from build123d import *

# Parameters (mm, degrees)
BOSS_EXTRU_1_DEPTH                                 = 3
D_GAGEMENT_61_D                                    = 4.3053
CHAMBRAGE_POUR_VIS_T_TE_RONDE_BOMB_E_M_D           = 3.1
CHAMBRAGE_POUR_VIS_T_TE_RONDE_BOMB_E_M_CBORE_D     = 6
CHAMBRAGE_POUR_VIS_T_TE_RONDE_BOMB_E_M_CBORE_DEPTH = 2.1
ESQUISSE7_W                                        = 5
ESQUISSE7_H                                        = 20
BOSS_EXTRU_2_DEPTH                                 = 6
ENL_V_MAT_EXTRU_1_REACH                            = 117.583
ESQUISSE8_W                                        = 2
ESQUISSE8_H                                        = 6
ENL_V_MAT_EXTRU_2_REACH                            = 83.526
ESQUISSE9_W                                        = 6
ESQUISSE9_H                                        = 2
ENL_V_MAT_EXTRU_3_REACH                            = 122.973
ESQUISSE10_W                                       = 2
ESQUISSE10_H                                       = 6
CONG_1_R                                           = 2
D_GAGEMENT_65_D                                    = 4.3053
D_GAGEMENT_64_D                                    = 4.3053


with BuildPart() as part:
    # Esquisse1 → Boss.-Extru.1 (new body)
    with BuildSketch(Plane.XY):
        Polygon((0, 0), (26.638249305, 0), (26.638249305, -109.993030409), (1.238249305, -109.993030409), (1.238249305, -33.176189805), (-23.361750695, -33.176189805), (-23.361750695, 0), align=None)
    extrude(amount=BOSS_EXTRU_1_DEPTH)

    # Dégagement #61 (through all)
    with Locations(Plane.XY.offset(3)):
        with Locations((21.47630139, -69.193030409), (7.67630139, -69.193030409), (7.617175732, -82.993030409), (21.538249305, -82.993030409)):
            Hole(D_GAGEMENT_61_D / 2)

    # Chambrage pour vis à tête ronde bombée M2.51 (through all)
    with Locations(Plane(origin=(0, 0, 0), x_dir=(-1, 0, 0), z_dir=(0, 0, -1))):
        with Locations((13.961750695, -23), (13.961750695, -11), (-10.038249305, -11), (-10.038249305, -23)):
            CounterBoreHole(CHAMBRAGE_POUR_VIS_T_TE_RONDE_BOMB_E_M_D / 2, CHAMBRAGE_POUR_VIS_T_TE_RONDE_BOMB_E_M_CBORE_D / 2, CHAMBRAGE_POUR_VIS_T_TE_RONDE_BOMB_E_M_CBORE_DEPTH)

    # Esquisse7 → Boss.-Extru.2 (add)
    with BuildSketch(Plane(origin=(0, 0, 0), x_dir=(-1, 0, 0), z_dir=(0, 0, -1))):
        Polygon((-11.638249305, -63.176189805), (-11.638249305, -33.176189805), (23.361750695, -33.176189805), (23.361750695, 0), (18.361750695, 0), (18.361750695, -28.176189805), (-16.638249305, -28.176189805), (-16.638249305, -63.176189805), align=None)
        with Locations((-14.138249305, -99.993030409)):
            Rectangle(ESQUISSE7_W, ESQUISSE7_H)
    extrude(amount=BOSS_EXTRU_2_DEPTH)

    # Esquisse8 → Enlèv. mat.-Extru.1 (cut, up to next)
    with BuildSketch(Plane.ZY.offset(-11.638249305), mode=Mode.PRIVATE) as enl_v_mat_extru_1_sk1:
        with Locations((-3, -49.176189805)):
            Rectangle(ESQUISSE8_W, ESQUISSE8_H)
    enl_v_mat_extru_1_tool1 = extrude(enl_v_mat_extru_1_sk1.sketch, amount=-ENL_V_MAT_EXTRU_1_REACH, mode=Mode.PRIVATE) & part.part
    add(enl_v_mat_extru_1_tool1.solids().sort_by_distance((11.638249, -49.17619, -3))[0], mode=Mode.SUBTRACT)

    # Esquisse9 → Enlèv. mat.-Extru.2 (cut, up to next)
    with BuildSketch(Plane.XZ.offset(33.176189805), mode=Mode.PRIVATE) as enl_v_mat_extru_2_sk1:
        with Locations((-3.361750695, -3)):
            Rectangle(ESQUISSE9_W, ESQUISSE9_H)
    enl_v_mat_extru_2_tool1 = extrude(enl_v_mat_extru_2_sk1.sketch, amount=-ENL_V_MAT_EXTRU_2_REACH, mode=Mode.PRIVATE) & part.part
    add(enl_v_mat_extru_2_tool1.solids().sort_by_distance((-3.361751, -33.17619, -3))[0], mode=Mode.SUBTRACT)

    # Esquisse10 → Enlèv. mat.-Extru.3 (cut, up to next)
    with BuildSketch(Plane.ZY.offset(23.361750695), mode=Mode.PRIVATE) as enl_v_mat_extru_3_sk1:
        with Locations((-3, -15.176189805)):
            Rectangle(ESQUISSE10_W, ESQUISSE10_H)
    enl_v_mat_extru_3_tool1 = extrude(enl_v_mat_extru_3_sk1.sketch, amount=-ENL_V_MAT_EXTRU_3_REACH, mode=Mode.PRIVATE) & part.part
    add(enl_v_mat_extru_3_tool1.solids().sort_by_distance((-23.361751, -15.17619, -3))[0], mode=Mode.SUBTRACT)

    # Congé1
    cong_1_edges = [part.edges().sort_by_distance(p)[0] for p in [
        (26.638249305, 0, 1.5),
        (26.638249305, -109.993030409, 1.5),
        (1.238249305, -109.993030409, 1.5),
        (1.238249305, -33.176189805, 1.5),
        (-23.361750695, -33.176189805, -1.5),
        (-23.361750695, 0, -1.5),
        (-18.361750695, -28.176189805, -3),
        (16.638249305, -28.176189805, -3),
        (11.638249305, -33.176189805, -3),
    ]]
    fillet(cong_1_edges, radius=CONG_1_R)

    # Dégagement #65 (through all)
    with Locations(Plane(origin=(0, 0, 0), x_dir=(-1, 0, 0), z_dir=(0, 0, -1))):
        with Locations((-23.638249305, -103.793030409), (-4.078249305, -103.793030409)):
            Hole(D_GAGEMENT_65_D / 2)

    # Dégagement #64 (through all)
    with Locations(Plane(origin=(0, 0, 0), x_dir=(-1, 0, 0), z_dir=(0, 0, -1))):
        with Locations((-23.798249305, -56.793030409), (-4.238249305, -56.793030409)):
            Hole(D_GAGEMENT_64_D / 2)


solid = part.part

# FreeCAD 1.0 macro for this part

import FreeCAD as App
import Part
import Sketcher

V = App.Vector
Q = App.Units.Quantity


def edges_at(feature, points):
    """Names of the edges that pass closest to the given points."""
    edges = feature.Shape.Edges
    near = lambda p: min(range(len(edges)), key=lambda i: edges[i].distToShape(Part.Vertex(*p))[0])
    return sorted({f"Edge{near(p) + 1}" for p in points})

doc = App.newDocument("Part")
body = doc.addObject("PartDesign::Body", "Body")

sketch1 = body.newObject("Sketcher::SketchObject", "Sketch")
sketch1.AttachmentSupport = (doc.getObject("XY_Plane"), [""])
sketch1.MapMode = "FlatFace"
sketch1.addGeometry([
    Part.LineSegment(V(26.638249, 0, 0), V(-23.361751, 0, 0)),
    Part.LineSegment(V(-23.361751, 0, 0), V(-23.361751, -33.17619, 0)),
    Part.LineSegment(V(-23.361751, -33.17619, 0), V(1.238249, -33.17619, 0)),
    Part.LineSegment(V(1.238249, -33.17619, 0), V(1.238249, -109.99303, 0)),
    Part.LineSegment(V(1.238249, -109.99303, 0), V(26.638249, -109.99303, 0)),
    Part.LineSegment(V(26.638249, -109.99303, 0), V(26.638249, 0, 0)),
], False)
sketch1.addConstraint([
    Sketcher.Constraint("Coincident", 0, 2, 1, 1),
    Sketcher.Constraint("Coincident", 1, 2, 2, 1),
    Sketcher.Constraint("Coincident", 2, 2, 3, 1),
    Sketcher.Constraint("Coincident", 3, 2, 4, 1),
    Sketcher.Constraint("Coincident", 4, 2, 5, 1),
    Sketcher.Constraint("Coincident", 5, 2, 0, 1),
    Sketcher.Constraint("Horizontal", 0),
    Sketcher.Constraint("Vertical", 1),
    Sketcher.Constraint("Horizontal", 2),
    Sketcher.Constraint("Vertical", 3),
    Sketcher.Constraint("Horizontal", 4),
    Sketcher.Constraint("Vertical", 5),
    Sketcher.Constraint("PointOnObject", 0, 2, -1),
    Sketcher.Constraint("DistanceX", 0, 2, 0, 1, Q("50 mm")),
    Sketcher.Constraint("DistanceX", 2, 1, 2, 2, Q("24.6 mm")),
    Sketcher.Constraint("DistanceY", 1, 2, 1, 1, Q("33.17619 mm")),
    Sketcher.Constraint("DistanceY", 3, 2, 3, 1, Q("76.816841 mm")),
    Sketcher.Constraint("DistanceX", 0, 2, -1, 1, Q("23.361751 mm")),
])
pad1 = body.newObject("PartDesign::Pad", "Pad")
pad1.Profile = sketch1
pad1.Length = 3

sketch2 = body.newObject("Sketcher::SketchObject", "Sketch001")
sketch2.AttachmentSupport = (doc.getObject("XY_Plane"), [""])
sketch2.MapMode = "FlatFace"
sketch2.AttachmentOffset = App.Placement(V(0, 0, 3), App.Rotation())
sketch2.addGeometry([
    Part.Circle(V(21.476301, -69.19303, 0), V(0, 0, 1), 2.15265),
    Part.Circle(V(7.676301, -69.19303, 0), V(0, 0, 1), 2.15265),
    Part.Circle(V(7.617176, -82.99303, 0), V(0, 0, 1), 2.15265),
    Part.Circle(V(21.538249, -82.99303, 0), V(0, 0, 1), 2.15265),
], False)
sketch2.addConstraint([
    Sketcher.Constraint("Equal", 0, 1),
    Sketcher.Constraint("Equal", 1, 2),
    Sketcher.Constraint("Equal", 2, 3),
    Sketcher.Constraint("Horizontal", 0, 3, 1, 3),
    Sketcher.Constraint("Horizontal", 2, 3, 3, 3),
    Sketcher.Constraint("Diameter", 0, Q("4.3053 mm")),
    Sketcher.Constraint("DistanceX", 1, 3, 0, 3, Q("13.8 mm")),
    Sketcher.Constraint("DistanceY", 2, 3, 1, 3, Q("13.8 mm")),
    Sketcher.Constraint("DistanceX", -1, 1, 0, 3, Q("21.476301 mm")),
    Sketcher.Constraint("DistanceY", 0, 3, -1, 1, Q("69.19303 mm")),
    Sketcher.Constraint("DistanceX", -1, 1, 3, 3, Q("21.538249 mm")),
    Sketcher.Constraint("DistanceX", -1, 1, 2, 3, Q("7.617176 mm")),
])
doc.recompute()
hole = body.newObject("PartDesign::Hole", "Hole")
hole.Profile = sketch2
hole.ThreadType = "None"
hole.Diameter = 4.3053
hole.DepthType = "ThroughAll"

sketch3 = body.newObject("Sketcher::SketchObject", "Sketch002")
sketch3.AttachmentSupport = (doc.getObject("XY_Plane"), [""])
sketch3.MapMode = "FlatFace"
sketch3.addGeometry([
    Part.Circle(V(-13.961751, -23, 0), V(0, 0, 1), 1.55),
    Part.Circle(V(-13.961751, -11, 0), V(0, 0, 1), 1.55),
    Part.Circle(V(10.038249, -11, 0), V(0, 0, 1), 1.55),
    Part.Circle(V(10.038249, -23, 0), V(0, 0, 1), 1.55),
], False)
sketch3.addConstraint([
    Sketcher.Constraint("Equal", 0, 1),
    Sketcher.Constraint("Equal", 1, 2),
    Sketcher.Constraint("Equal", 2, 3),
    Sketcher.Constraint("Horizontal", 1, 3, 2, 3),
    Sketcher.Constraint("Horizontal", 0, 3, 3, 3),
    Sketcher.Constraint("Vertical", 0, 3, 1, 3),
    Sketcher.Constraint("Vertical", 2, 3, 3, 3),
    Sketcher.Constraint("Diameter", 0, Q("3.1 mm")),
    Sketcher.Constraint("DistanceY", 0, 3, -1, 1, Q("23 mm")),
    Sketcher.Constraint("DistanceY", 1, 3, -1, 1, Q("11 mm")),
    Sketcher.Constraint("DistanceX", 1, 3, 2, 3, Q("24 mm")),
    Sketcher.Constraint("DistanceX", 0, 3, -1, 1, Q("13.961751 mm")),
])
doc.recompute()
hole2 = body.newObject("PartDesign::Hole", "Hole001")
hole2.Profile = sketch3
hole2.ThreadType = "None"
hole2.Diameter = 3.1
hole2.DepthType = "ThroughAll"
hole2.HoleCutType = "Counterbore"
hole2.HoleCutDiameter = 6
hole2.HoleCutDepth = 2.1
hole2.Reversed = True

sketch4 = body.newObject("Sketcher::SketchObject", "Sketch003")
sketch4.AttachmentSupport = (doc.getObject("XY_Plane"), [""])
sketch4.MapMode = "FlatFace"
sketch4.addGeometry([
    Part.LineSegment(V(11.638249, -63.17619, 0), V(11.638249, -33.17619, 0)),
    Part.LineSegment(V(11.638249, -33.17619, 0), V(-23.361751, -33.17619, 0)),
    Part.LineSegment(V(-23.361751, -33.17619, 0), V(-23.361751, 0, 0)),
    Part.LineSegment(V(-23.361751, 0, 0), V(-18.361751, 0, 0)),
    Part.LineSegment(V(-18.361751, 0, 0), V(-18.361751, -28.17619, 0)),
    Part.LineSegment(V(-18.361751, -28.17619, 0), V(16.638249, -28.17619, 0)),
    Part.LineSegment(V(16.638249, -28.17619, 0), V(16.638249, -63.17619, 0)),
    Part.LineSegment(V(16.638249, -63.17619, 0), V(11.638249, -63.17619, 0)),
    Part.LineSegment(V(16.638249, -89.99303, 0), V(16.638249, -109.99303, 0)),
    Part.LineSegment(V(16.638249, -109.99303, 0), V(11.638249, -109.99303, 0)),
    Part.LineSegment(V(11.638249, -109.99303, 0), V(11.638249, -89.99303, 0)),
    Part.LineSegment(V(11.638249, -89.99303, 0), V(16.638249, -89.99303, 0)),
], False)
sketch4.addConstraint([
    Sketcher.Constraint("Coincident", 0, 2, 1, 1),
    Sketcher.Constraint("Coincident", 1, 2, 2, 1),
    Sketcher.Constraint("Coincident", 2, 2, 3, 1),
    Sketcher.Constraint("Coincident", 3, 2, 4, 1),
    Sketcher.Constraint("Coincident", 4, 2, 5, 1),
    Sketcher.Constraint("Coincident", 5, 2, 6, 1),
    Sketcher.Constraint("Coincident", 6, 2, 7, 1),
    Sketcher.Constraint("Coincident", 7, 2, 0, 1),
    Sketcher.Constraint("Coincident", 8, 2, 9, 1),
    Sketcher.Constraint("Coincident", 9, 2, 10, 1),
    Sketcher.Constraint("Coincident", 10, 2, 11, 1),
    Sketcher.Constraint("Coincident", 11, 2, 8, 1),
    Sketcher.Constraint("Vertical", 0),
    Sketcher.Constraint("Horizontal", 1),
    Sketcher.Constraint("Vertical", 2),
    Sketcher.Constraint("Horizontal", 3),
    Sketcher.Constraint("Vertical", 4),
    Sketcher.Constraint("Horizontal", 5),
    Sketcher.Constraint("Vertical", 6),
    Sketcher.Constraint("Horizontal", 7),
    Sketcher.Constraint("Vertical", 8),
    Sketcher.Constraint("Horizontal", 9),
    Sketcher.Constraint("Vertical", 10),
    Sketcher.Constraint("Horizontal", 11),
    Sketcher.Constraint("PointOnObject", 2, 2, -1),
    Sketcher.Constraint("Vertical", 6, 2, 8, 2),
    Sketcher.Constraint("Vertical", 7, 2, 9, 2),
    Sketcher.Constraint("Equal", 1, 5),
    Sketcher.Constraint("Equal", 5, 6),
    Sketcher.Constraint("DistanceX", 1, 2, 1, 1, Q("35 mm")),
    Sketcher.Constraint("DistanceX", 3, 1, 3, 2, Q("5 mm")),
    Sketcher.Constraint("DistanceY", 0, 1, 0, 2, Q("30 mm")),
    Sketcher.Constraint("DistanceY", 8, 2, 8, 1, Q("20 mm")),
    Sketcher.Constraint("DistanceY", 2, 1, 2, 2, Q("33.17619 mm")),
    Sketcher.Constraint("DistanceX", -1, 1, 0, 2, Q("11.638249 mm")),
    Sketcher.Constraint("DistanceY", 8, 2, -1, 1, Q("109.99303 mm")),
])
pad2 = body.newObject("PartDesign::Pad", "Pad001")
pad2.Profile = sketch4
pad2.Length = 6
pad2.Reversed = True

sketch5 = body.newObject("Sketcher::SketchObject", "Sketch004")
sketch5.AttachmentSupport = (doc.getObject("YZ_Plane"), [""])
sketch5.MapMode = "FlatFace"
sketch5.AttachmentOffset = App.Placement(V(0, 0, 11.638249), App.Rotation())
sketch5.addGeometry([
    Part.LineSegment(V(-46.17619, -4, 0), V(-52.17619, -4, 0)),
    Part.LineSegment(V(-52.17619, -4, 0), V(-52.17619, -2, 0)),
    Part.LineSegment(V(-52.17619, -2, 0), V(-46.17619, -2, 0)),
    Part.LineSegment(V(-46.17619, -2, 0), V(-46.17619, -4, 0)),
], False)
sketch5.addConstraint([
    Sketcher.Constraint("Coincident", 0, 2, 1, 1),
    Sketcher.Constraint("Coincident", 1, 2, 2, 1),
    Sketcher.Constraint("Coincident", 2, 2, 3, 1),
    Sketcher.Constraint("Coincident", 3, 2, 0, 1),
    Sketcher.Constraint("Horizontal", 0),
    Sketcher.Constraint("Vertical", 1),
    Sketcher.Constraint("Horizontal", 2),
    Sketcher.Constraint("Vertical", 3),
    Sketcher.Constraint("DistanceX", 0, 2, 0, 1, Q("6 mm")),
    Sketcher.Constraint("DistanceY", 1, 1, 1, 2, Q("2 mm")),
    Sketcher.Constraint("DistanceY", 0, 2, -1, 1, Q("4 mm")),
    Sketcher.Constraint("DistanceX", 0, 2, -1, 1, Q("52.17619 mm")),
])
pocket1 = body.newObject("PartDesign::Pocket", "Pocket")
pocket1.Profile = sketch5
pocket1.Type = "UpToFirst"
pocket1.Reversed = True

sketch6 = body.newObject("Sketcher::SketchObject", "Sketch005")
sketch6.AttachmentSupport = (doc.getObject("XZ_Plane"), [""])
sketch6.MapMode = "FlatFace"
sketch6.AttachmentOffset = App.Placement(V(0, 0, 33.17619), App.Rotation())
sketch6.addGeometry([
    Part.LineSegment(V(-6.361751, -2, 0), V(-6.361751, -4, 0)),
    Part.LineSegment(V(-6.361751, -4, 0), V(-0.361751, -4, 0)),
    Part.LineSegment(V(-0.361751, -4, 0), V(-0.361751, -2, 0)),
    Part.LineSegment(V(-0.361751, -2, 0), V(-6.361751, -2, 0)),
], False)
sketch6.addConstraint([
    Sketcher.Constraint("Coincident", 0, 2, 1, 1),
    Sketcher.Constraint("Coincident", 1, 2, 2, 1),
    Sketcher.Constraint("Coincident", 2, 2, 3, 1),
    Sketcher.Constraint("Coincident", 3, 2, 0, 1),
    Sketcher.Constraint("Vertical", 0),
    Sketcher.Constraint("Horizontal", 1),
    Sketcher.Constraint("Vertical", 2),
    Sketcher.Constraint("Horizontal", 3),
    Sketcher.Constraint("DistanceX", 1, 1, 1, 2, Q("6 mm")),
    Sketcher.Constraint("DistanceY", 0, 2, 0, 1, Q("2 mm")),
    Sketcher.Constraint("DistanceY", 0, 2, -1, 1, Q("4 mm")),
    Sketcher.Constraint("DistanceX", 0, 2, -1, 1, Q("6.361751 mm")),
])
pocket2 = body.newObject("PartDesign::Pocket", "Pocket001")
pocket2.Profile = sketch6
pocket2.Type = "UpToFirst"

sketch7 = body.newObject("Sketcher::SketchObject", "Sketch006")
sketch7.AttachmentSupport = (doc.getObject("YZ_Plane"), [""])
sketch7.MapMode = "FlatFace"
sketch7.AttachmentOffset = App.Placement(V(0, 0, -23.361751), App.Rotation())
sketch7.addGeometry([
    Part.LineSegment(V(-12.17619, -4, 0), V(-18.17619, -4, 0)),
    Part.LineSegment(V(-18.17619, -4, 0), V(-18.17619, -2, 0)),
    Part.LineSegment(V(-18.17619, -2, 0), V(-12.17619, -2, 0)),
    Part.LineSegment(V(-12.17619, -2, 0), V(-12.17619, -4, 0)),
], False)
sketch7.addConstraint([
    Sketcher.Constraint("Coincident", 0, 2, 1, 1),
    Sketcher.Constraint("Coincident", 1, 2, 2, 1),
    Sketcher.Constraint("Coincident", 2, 2, 3, 1),
    Sketcher.Constraint("Coincident", 3, 2, 0, 1),
    Sketcher.Constraint("Horizontal", 0),
    Sketcher.Constraint("Vertical", 1),
    Sketcher.Constraint("Horizontal", 2),
    Sketcher.Constraint("Vertical", 3),
    Sketcher.Constraint("DistanceX", 0, 2, 0, 1, Q("6 mm")),
    Sketcher.Constraint("DistanceY", 1, 1, 1, 2, Q("2 mm")),
    Sketcher.Constraint("DistanceY", 0, 2, -1, 1, Q("4 mm")),
    Sketcher.Constraint("DistanceX", 0, 2, -1, 1, Q("18.17619 mm")),
])
pocket3 = body.newObject("PartDesign::Pocket", "Pocket002")
pocket3.Profile = sketch7
pocket3.Type = "UpToFirst"
pocket3.Reversed = True
doc.recompute()

fillet = body.newObject("PartDesign::Fillet", "Fillet")
fillet.Base = (pocket3, edges_at(pocket3, [
    (26.638, 0, 1.5),
    (26.638, -109.993, 1.5),
    (1.238, -109.993, 1.5),
    (1.238, -33.176, 1.5),
    (-23.362, -33.176, -1.5),
    (-23.362, 0, -1.5),
    (-18.362, -28.176, -3),
    (16.638, -28.176, -3),
    (11.638, -33.176, -3),
]))
fillet.Radius = 2

sketch8 = body.newObject("Sketcher::SketchObject", "Sketch007")
sketch8.AttachmentSupport = (doc.getObject("XY_Plane"), [""])
sketch8.MapMode = "FlatFace"
sketch8.addGeometry([
    Part.Circle(V(23.638249, -103.79303, 0), V(0, 0, 1), 2.15265),
    Part.Circle(V(4.078249, -103.79303, 0), V(0, 0, 1), 2.15265),
], False)
sketch8.addConstraint([
    Sketcher.Constraint("Equal", 0, 1),
    Sketcher.Constraint("Horizontal", 0, 3, 1, 3),
    Sketcher.Constraint("Diameter", 0, Q("4.3053 mm")),
    Sketcher.Constraint("DistanceX", 1, 3, 0, 3, Q("19.56 mm")),
    Sketcher.Constraint("DistanceX", -1, 1, 0, 3, Q("23.638249 mm")),
    Sketcher.Constraint("DistanceY", 0, 3, -1, 1, Q("103.79303 mm")),
])
doc.recompute()
hole3 = body.newObject("PartDesign::Hole", "Hole002")
hole3.Profile = sketch8
hole3.ThreadType = "None"
hole3.Diameter = 4.3053
hole3.DepthType = "ThroughAll"
hole3.Reversed = True

sketch9 = body.newObject("Sketcher::SketchObject", "Sketch008")
sketch9.AttachmentSupport = (doc.getObject("XY_Plane"), [""])
sketch9.MapMode = "FlatFace"
sketch9.addGeometry([
    Part.Circle(V(23.798249, -56.79303, 0), V(0, 0, 1), 2.15265),
    Part.Circle(V(4.238249, -56.79303, 0), V(0, 0, 1), 2.15265),
], False)
sketch9.addConstraint([
    Sketcher.Constraint("Equal", 0, 1),
    Sketcher.Constraint("Horizontal", 0, 3, 1, 3),
    Sketcher.Constraint("Diameter", 0, Q("4.3053 mm")),
    Sketcher.Constraint("DistanceX", 1, 3, 0, 3, Q("19.56 mm")),
    Sketcher.Constraint("DistanceX", -1, 1, 0, 3, Q("23.798249 mm")),
    Sketcher.Constraint("DistanceY", 0, 3, -1, 1, Q("56.79303 mm")),
])
doc.recompute()
hole4 = body.newObject("PartDesign::Hole", "Hole003")
hole4.Profile = sketch9
hole4.ThreadType = "None"
hole4.Diameter = 4.3053
hole4.DepthType = "ThroughAll"
hole4.Reversed = True

doc.recompute()
